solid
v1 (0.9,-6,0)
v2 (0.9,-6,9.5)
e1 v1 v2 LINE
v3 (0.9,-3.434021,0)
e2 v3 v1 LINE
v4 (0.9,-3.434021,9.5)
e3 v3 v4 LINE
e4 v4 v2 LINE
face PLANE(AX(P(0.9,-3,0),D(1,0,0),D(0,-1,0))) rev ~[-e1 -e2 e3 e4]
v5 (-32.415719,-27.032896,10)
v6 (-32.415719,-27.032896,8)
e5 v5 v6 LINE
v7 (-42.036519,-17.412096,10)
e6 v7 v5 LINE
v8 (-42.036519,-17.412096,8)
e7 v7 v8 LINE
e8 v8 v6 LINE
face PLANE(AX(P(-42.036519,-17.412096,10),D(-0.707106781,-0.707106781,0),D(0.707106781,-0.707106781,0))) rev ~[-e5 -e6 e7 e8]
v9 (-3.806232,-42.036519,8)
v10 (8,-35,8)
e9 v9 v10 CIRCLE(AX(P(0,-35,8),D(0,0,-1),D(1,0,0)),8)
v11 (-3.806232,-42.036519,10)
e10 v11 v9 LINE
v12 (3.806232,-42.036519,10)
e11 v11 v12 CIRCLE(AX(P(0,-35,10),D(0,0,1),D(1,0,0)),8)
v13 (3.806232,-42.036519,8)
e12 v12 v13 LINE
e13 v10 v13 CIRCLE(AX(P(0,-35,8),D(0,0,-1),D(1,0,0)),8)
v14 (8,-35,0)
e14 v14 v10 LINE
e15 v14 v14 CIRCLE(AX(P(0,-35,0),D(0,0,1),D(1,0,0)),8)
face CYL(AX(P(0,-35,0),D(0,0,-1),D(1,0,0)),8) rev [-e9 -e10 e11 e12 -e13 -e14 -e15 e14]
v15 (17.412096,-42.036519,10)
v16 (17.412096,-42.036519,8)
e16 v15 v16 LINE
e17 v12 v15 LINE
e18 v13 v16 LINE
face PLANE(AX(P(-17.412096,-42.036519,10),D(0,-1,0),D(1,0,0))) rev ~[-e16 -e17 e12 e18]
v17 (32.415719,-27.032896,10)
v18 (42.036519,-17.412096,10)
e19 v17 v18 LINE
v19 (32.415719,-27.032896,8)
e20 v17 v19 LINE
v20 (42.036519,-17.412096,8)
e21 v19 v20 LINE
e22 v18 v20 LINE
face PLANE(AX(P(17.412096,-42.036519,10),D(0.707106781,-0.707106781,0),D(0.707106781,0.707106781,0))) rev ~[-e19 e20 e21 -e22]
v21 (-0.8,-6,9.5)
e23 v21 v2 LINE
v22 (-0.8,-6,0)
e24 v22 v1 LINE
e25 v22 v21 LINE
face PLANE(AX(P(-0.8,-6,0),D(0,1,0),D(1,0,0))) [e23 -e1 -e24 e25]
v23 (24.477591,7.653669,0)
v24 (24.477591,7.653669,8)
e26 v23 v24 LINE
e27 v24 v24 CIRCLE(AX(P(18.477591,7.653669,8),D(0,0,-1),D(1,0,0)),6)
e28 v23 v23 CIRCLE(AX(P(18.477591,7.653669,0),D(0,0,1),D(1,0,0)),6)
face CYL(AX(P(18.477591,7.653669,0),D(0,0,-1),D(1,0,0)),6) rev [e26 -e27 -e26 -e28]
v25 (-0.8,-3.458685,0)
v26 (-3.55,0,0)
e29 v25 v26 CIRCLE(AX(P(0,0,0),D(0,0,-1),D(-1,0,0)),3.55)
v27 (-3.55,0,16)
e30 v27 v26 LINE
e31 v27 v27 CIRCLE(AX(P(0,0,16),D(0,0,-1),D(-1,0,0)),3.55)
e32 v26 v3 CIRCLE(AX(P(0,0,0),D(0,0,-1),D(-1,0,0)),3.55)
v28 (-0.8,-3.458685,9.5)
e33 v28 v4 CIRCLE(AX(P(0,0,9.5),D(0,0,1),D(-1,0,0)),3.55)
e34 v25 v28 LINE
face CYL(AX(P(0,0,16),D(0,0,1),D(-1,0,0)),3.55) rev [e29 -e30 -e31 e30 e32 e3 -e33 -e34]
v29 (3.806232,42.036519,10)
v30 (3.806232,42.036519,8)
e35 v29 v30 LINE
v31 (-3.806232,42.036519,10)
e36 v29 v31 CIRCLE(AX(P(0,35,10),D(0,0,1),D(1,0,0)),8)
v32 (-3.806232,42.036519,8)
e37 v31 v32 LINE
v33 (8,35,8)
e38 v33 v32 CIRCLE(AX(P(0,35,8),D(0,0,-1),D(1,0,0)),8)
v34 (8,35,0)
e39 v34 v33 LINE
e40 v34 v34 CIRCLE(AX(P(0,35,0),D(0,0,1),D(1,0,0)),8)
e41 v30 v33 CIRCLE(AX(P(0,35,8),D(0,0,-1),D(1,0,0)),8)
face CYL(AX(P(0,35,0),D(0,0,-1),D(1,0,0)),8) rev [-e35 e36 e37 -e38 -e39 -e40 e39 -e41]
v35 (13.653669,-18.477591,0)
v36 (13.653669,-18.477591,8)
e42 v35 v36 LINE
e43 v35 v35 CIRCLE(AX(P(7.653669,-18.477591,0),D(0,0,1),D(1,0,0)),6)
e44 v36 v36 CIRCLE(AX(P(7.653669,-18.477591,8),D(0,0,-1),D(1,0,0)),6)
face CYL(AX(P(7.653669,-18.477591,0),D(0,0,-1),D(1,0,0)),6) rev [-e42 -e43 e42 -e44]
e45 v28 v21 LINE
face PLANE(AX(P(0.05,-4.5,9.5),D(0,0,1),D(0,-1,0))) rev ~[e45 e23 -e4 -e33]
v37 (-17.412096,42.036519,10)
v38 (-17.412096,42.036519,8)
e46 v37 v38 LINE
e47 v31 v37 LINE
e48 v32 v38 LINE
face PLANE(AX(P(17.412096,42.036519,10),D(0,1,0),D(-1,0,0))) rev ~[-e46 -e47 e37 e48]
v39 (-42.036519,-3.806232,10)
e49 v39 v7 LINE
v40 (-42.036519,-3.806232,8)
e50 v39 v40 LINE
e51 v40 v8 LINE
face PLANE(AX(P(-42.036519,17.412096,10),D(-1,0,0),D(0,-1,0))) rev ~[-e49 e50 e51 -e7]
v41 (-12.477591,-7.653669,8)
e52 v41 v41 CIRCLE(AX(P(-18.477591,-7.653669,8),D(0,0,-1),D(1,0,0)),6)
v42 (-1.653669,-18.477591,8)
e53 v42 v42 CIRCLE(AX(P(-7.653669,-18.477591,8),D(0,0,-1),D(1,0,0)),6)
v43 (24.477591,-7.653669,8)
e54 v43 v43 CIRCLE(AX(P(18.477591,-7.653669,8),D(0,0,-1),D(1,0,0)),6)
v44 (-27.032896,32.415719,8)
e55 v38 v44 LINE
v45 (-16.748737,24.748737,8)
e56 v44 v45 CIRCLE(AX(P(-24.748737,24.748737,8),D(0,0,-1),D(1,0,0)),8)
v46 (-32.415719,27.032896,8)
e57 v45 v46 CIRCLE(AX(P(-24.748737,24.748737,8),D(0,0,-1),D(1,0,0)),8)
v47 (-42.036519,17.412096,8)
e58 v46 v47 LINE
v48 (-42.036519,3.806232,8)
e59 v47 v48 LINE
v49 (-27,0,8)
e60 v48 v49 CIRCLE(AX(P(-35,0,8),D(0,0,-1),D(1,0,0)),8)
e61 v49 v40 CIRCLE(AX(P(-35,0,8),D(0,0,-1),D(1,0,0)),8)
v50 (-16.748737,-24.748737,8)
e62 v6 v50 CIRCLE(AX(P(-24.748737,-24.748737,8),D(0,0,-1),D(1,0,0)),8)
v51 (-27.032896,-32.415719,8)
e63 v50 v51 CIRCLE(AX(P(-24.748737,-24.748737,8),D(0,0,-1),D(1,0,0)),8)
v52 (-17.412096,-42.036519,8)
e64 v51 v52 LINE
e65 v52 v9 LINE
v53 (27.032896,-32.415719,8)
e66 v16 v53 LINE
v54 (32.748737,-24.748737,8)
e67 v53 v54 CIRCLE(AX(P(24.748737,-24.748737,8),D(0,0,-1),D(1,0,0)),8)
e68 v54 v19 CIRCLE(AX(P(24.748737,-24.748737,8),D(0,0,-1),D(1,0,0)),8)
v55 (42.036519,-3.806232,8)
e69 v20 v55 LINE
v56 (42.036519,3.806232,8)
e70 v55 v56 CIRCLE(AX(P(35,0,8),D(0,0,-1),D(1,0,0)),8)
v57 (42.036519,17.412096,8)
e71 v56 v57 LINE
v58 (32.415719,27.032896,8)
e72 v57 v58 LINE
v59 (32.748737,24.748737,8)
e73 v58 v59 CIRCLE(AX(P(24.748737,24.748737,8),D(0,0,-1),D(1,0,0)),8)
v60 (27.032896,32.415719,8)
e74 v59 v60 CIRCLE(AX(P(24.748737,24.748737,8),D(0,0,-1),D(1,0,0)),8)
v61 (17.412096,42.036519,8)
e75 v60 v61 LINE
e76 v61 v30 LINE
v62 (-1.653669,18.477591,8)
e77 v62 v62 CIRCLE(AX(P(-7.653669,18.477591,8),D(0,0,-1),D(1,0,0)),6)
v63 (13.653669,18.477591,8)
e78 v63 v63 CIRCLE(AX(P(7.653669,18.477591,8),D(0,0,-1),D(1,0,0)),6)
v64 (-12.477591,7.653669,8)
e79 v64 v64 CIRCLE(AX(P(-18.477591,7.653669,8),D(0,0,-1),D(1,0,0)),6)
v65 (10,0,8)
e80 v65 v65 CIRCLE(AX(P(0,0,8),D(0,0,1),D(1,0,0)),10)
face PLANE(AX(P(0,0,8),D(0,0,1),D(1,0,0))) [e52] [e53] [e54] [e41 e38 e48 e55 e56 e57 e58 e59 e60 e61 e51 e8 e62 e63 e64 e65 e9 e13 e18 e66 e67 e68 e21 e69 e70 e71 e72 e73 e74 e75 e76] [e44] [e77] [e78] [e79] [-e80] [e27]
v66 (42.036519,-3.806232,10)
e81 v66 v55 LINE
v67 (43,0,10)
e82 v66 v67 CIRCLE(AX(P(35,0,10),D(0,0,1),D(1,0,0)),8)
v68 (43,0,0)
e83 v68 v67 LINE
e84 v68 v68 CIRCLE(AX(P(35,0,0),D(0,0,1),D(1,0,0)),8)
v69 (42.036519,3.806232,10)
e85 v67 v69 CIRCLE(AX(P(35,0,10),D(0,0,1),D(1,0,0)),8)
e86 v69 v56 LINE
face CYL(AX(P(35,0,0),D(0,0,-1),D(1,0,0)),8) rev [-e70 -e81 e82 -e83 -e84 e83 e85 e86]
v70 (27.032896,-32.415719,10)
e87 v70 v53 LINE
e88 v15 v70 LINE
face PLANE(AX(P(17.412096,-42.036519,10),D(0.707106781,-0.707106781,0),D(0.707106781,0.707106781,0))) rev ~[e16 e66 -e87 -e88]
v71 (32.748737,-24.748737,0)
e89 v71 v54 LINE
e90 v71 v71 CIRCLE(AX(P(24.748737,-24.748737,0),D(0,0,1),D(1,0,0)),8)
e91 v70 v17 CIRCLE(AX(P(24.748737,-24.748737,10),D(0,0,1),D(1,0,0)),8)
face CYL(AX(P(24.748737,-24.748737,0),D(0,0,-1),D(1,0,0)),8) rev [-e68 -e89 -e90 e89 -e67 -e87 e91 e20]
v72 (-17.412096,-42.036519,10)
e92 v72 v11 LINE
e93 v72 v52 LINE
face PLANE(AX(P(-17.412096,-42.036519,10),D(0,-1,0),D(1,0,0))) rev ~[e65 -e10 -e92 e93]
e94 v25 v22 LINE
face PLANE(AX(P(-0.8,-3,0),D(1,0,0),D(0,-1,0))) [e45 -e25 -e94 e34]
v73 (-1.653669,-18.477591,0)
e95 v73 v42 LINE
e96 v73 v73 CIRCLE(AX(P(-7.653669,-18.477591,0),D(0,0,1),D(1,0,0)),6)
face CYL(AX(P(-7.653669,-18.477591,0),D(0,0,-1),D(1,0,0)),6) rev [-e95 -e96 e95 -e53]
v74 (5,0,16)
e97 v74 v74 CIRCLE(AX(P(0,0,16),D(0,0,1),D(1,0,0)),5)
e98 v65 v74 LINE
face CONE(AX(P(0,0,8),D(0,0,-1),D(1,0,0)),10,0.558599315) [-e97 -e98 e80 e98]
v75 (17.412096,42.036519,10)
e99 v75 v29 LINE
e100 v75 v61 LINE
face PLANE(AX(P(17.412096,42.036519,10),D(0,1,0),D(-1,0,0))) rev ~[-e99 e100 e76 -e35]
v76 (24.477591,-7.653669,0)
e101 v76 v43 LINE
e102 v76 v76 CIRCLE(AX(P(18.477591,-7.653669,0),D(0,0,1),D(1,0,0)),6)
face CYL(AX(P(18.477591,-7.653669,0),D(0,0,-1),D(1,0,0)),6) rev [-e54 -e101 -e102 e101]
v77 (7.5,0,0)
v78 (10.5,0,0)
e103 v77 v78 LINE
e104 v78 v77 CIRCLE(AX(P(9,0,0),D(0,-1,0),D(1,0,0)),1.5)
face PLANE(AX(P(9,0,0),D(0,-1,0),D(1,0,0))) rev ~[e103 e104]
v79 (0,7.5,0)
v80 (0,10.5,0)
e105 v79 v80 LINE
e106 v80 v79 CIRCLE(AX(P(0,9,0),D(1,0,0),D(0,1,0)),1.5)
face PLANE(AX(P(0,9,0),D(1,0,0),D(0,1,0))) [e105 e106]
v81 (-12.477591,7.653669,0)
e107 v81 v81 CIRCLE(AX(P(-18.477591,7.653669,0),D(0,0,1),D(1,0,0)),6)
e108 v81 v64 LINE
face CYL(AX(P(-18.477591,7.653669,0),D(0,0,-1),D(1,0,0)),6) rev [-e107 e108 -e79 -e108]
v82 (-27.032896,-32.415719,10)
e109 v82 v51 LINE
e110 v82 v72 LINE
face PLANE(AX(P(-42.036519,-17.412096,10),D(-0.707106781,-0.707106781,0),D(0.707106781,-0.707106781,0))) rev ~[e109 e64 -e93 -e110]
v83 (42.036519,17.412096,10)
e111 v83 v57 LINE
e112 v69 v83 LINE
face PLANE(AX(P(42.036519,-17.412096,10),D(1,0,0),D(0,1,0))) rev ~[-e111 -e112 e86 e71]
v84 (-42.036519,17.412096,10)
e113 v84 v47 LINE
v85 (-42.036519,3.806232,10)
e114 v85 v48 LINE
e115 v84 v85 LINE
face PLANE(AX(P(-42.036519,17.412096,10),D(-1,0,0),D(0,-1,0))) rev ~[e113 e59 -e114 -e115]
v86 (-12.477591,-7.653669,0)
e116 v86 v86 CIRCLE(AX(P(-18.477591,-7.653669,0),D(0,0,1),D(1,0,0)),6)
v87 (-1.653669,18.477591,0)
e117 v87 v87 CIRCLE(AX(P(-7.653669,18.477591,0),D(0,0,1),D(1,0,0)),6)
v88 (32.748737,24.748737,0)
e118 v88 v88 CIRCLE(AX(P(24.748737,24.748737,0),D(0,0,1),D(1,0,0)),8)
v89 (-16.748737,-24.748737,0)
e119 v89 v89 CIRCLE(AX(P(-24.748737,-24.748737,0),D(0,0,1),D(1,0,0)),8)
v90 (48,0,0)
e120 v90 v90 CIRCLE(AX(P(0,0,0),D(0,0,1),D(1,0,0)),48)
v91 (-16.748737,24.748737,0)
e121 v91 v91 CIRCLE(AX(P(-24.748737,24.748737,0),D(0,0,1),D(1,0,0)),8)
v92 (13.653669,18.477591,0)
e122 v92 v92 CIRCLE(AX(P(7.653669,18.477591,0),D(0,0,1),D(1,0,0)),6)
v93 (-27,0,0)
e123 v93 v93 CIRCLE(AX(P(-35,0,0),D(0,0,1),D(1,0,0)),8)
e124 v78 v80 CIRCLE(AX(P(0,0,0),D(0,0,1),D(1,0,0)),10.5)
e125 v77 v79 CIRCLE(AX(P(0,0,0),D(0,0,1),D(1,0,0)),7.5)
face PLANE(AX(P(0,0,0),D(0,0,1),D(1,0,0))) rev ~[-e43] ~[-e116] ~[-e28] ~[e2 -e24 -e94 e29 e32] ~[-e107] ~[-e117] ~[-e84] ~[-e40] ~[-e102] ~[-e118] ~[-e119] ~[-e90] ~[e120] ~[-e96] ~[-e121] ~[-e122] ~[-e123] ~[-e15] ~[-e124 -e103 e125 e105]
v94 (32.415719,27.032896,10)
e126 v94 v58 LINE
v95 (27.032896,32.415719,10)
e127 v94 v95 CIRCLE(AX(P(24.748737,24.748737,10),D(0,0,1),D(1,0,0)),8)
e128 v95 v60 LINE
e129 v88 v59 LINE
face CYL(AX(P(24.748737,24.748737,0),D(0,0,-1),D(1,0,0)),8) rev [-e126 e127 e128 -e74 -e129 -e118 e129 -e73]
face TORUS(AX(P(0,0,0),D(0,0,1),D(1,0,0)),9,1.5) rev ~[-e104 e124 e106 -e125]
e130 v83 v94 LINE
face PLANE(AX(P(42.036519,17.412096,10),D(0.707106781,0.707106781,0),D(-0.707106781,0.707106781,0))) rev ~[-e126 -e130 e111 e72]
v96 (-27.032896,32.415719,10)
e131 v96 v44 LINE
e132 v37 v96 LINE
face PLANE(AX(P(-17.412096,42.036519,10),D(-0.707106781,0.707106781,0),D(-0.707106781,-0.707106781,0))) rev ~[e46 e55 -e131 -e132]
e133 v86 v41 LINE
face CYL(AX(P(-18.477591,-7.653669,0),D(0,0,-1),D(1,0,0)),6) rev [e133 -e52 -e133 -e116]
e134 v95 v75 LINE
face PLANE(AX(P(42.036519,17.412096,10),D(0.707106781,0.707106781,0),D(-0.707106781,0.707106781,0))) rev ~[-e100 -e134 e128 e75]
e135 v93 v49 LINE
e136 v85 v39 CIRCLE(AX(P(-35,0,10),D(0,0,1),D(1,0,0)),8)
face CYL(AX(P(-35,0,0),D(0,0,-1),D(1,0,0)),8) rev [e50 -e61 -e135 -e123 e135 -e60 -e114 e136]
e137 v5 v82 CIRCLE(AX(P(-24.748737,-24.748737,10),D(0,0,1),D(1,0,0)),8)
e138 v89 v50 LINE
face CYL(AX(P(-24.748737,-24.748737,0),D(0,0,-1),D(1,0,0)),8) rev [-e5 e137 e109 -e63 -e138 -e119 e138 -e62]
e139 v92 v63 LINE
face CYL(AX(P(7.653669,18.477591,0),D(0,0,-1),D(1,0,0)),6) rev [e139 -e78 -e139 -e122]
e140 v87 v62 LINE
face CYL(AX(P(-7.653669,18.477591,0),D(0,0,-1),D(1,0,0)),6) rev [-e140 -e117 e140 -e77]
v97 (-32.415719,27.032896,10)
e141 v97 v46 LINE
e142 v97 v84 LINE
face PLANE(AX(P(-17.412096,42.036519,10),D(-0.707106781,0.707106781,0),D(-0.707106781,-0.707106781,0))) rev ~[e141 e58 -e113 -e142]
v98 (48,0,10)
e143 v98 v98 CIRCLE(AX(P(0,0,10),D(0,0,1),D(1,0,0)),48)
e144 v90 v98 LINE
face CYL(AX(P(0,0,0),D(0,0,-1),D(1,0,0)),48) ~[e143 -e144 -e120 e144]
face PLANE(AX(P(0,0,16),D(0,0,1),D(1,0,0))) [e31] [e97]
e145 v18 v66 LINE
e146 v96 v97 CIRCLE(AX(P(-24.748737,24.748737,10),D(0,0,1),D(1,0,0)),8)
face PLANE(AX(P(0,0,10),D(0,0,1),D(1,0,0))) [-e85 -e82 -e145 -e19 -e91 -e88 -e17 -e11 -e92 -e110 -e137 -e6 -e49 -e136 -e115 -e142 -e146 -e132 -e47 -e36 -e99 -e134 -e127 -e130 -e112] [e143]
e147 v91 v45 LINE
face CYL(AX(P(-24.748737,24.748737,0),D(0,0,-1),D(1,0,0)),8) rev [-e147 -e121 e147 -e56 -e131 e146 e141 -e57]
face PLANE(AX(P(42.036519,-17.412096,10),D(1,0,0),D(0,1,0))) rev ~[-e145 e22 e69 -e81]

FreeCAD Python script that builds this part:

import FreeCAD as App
import Part
import Sketcher
from FreeCAD import Vector
Q = App.Units.Quantity


def add_polygon(sketch, points):
    """Adds a closed chain of lines whose ends are joined by coincident constraints."""
    first, n = sketch.GeometryCount, len(points)
    for a, b in zip(points, points[1:] + points[:1]):
        sketch.addGeometry(Part.LineSegment(App.Vector(*a, 0), App.Vector(*b, 0)), False)
    for i in range(n):
        sketch.addConstraint(Sketcher.Constraint("Coincident", first + i, 2, first + (i + 1) % n, 1))

doc = App.newDocument("Part")
body = doc.addObject("PartDesign::Body", "Body")

sketch1 = body.newObject("Sketcher::SketchObject", "Sketch")
sketch1.AttachmentSupport = (doc.getObject("XY_Plane"), [""])
sketch1.MapMode = "FlatFace"
sketch1.addGeometry([
    Part.Circle(Vector(0, 0, 0), Vector(0, 0, 1), 48),
    Part.Circle(Vector(-25, -25, 0), Vector(0, 0, 1), 8),
    Part.Circle(Vector(-8, -18, 0), Vector(0, 0, 1), 6),
    Part.Circle(Vector(-18, -8, 0), Vector(0, 0, 1), 6),
    Part.Circle(Vector(0, -35, 0), Vector(0, 0, 1), 8),
    Part.Circle(Vector(25, -25, 0), Vector(0, 0, 1), 8),
    Part.Circle(Vector(8, -18, 0), Vector(0, 0, 1), 6),
    Part.Circle(Vector(18, -8, 0), Vector(0, 0, 1), 6),
    Part.Circle(Vector(-35, 0, 0), Vector(0, 0, 1), 8),
    Part.Circle(Vector(-18, 8, 0), Vector(0, 0, 1), 6),
    Part.Circle(Vector(-8, 18, 0), Vector(0, 0, 1), 6),
    Part.Circle(Vector(-25, 25, 0), Vector(0, 0, 1), 8),
    Part.Circle(Vector(18, 8, 0), Vector(0, 0, 1), 6),
    Part.Circle(Vector(8, 18, 0), Vector(0, 0, 1), 6),
    Part.Circle(Vector(35, 0, 0), Vector(0, 0, 1), 8),
    Part.Circle(Vector(0, 35, 0), Vector(0, 0, 1), 8),
    Part.Circle(Vector(25, 25, 0), Vector(0, 0, 1), 8),
], False)
sketch1.addConstraint([
    Sketcher.Constraint("Coincident", 0, 3, -1, 1),
    Sketcher.Constraint("Equal", 2, 3),
    Sketcher.Constraint("Equal", 1, 4),
    Sketcher.Constraint("Equal", 4, 5),
    Sketcher.Constraint("Equal", 3, 6),
    Sketcher.Constraint("Equal", 6, 7),
    Sketcher.Constraint("Equal", 5, 8),
    Sketcher.Constraint("Equal", 7, 9),
    Sketcher.Constraint("Equal", 9, 10),
    Sketcher.Constraint("Equal", 8, 11),
    Sketcher.Constraint("Equal", 10, 12),
    Sketcher.Constraint("Equal", 12, 13),
    Sketcher.Constraint("Equal", 11, 14),
    Sketcher.Constraint("Equal", 14, 15),
    Sketcher.Constraint("Equal", 15, 16),
    Sketcher.Constraint("Symmetric", 7, 3, 9, 3, -1, 1),
    Sketcher.Constraint("Symmetric", 6, 3, 10, 3, -1, 1),
    Sketcher.Constraint("Symmetric", 5, 3, 11, 3, -1, 1),
    Sketcher.Constraint("Symmetric", 3, 3, 12, 3, -1, 1),
    Sketcher.Constraint("Symmetric", 2, 3, 13, 3, -1, 1),
    Sketcher.Constraint("Symmetric", 8, 3, 14, 3, -1, 1),
    Sketcher.Constraint("Symmetric", 4, 3, 15, 3, -1, 1),
    Sketcher.Constraint("Symmetric", 1, 3, 16, 3, -1, 1),
    Sketcher.Constraint("Symmetric", 1, 3, 5, 3, -2),
    Sketcher.Constraint("Symmetric", 2, 3, 6, 3, -2),
    Sketcher.Constraint("Symmetric", 3, 3, 7, 3, -2),
    Sketcher.Constraint("PointOnObject", 4, 3, -2),
    Sketcher.Constraint("PointOnObject", 8, 3, -1),
    Sketcher.Constraint("Diameter", 0, Q("96 mm")),
    Sketcher.Constraint("Diameter", 1, Q("16 mm")),
    Sketcher.Constraint("Diameter", 2, Q("12 mm")),
    Sketcher.Constraint("DistanceY", 4, 3, -1, 1, Q("35 mm")),
    Sketcher.Constraint("DistanceX", 8, 3, -1, 1, Q("35 mm")),
    Sketcher.Constraint("DistanceX", 2, 3, -1, 1, Q("7.653669 mm")),
    Sketcher.Constraint("DistanceY", 2, 3, -1, 1, Q("18.477591 mm")),
    Sketcher.Constraint("DistanceX", 3, 3, -1, 1, Q("18.477591 mm")),
    Sketcher.Constraint("DistanceY", 3, 3, -1, 1, Q("7.653669 mm")),
    Sketcher.Constraint("DistanceX", 1, 3, -1, 1, Q("24.748737 mm")),
    Sketcher.Constraint("DistanceY", 1, 3, -1, 1, Q("24.748737 mm")),
])
pad1 = body.newObject("PartDesign::Pad", "Pad")
pad1.Profile = sketch1
pad1.Length = 10

sketch2 = body.newObject("Sketcher::SketchObject", "Sketch001")
sketch2.AttachmentSupport = (doc.getObject("XY_Plane"), [""])
sketch2.MapMode = "FlatFace"
sketch2.AttachmentOffset = App.Placement(Vector(0, 0, 10), App.Rotation())
add_polygon(sketch2, [(42, 17), (17, 42), (-17, 42), (-42, 17), (-42, -17), (-17, -42), (17, -42), (42, -17)])
sketch2.addConstraint([
    Sketcher.Constraint("Horizontal", 1),
    Sketcher.Constraint("Vertical", 3),
    Sketcher.Constraint("Horizontal", 5),
    Sketcher.Constraint("Vertical", 7),
    Sketcher.Constraint("Symmetric", 0, 2, 4, 2, -1, 1),
    Sketcher.Constraint("Symmetric", 2, 2, 6, 2, -1, 1),
    Sketcher.Constraint("Perpendicular", 0, 2),
    Sketcher.Constraint("Perpendicular", 2, 4),
    Sketcher.Constraint("Perpendicular", 4, 6),
    Sketcher.Constraint("Horizontal", 3, 2, 6, 2),
    Sketcher.Constraint("Vertical", 1, 2, 4, 2),
    Sketcher.Constraint("Equal", 5, 3),
    Sketcher.Constraint("DistanceX", 1, 2, 1, 1, Q("34.824192 mm")),
    Sketcher.Constraint("DistanceY", -1, 1, 0, 2, Q("42.036519 mm")),
])
pocket1 = body.newObject("PartDesign::Pocket", "Pocket")
pocket1.Profile = sketch2
pocket1.Length = 2

sketch3 = body.newObject("Sketcher::SketchObject", "Sketch002")
sketch3.AttachmentSupport = (doc.getObject("XZ_Plane"), [""])
sketch3.MapMode = "FlatFace"
add_polygon(sketch3, [(0, 8), (10, 8), (5, 16), (0, 16)])
sketch3.addConstraint([
    Sketcher.Constraint("Horizontal", 0),
    Sketcher.Constraint("Horizontal", 2),
    Sketcher.Constraint("Vertical", 3),
    Sketcher.Constraint("PointOnObject", 2, 2, -2),
    Sketcher.Constraint("DistanceX", 0, 1, 0, 2, Q("10 mm")),
    Sketcher.Constraint("DistanceX", 2, 2, 2, 1, Q("5 mm")),
    Sketcher.Constraint("DistanceY", 3, 2, 3, 1, Q("8 mm")),
    Sketcher.Constraint("DistanceY", -1, 1, 0, 2, Q("8 mm")),
])
revolution = body.newObject("PartDesign::Revolution", "Revolution")
revolution.Profile = sketch3
revolution.ReferenceAxis = (sketch3, ["V_Axis"])
revolution.Angle = 360

sketch4 = body.newObject("Sketcher::SketchObject", "Sketch003")
sketch4.AttachmentSupport = (doc.getObject("XY_Plane"), [""])
sketch4.MapMode = "FlatFace"
sketch4.AttachmentOffset = App.Placement(Vector(0, 0, 16), App.Rotation())
sketch4.addGeometry(Part.Circle(Vector(0, 0, 0), Vector(0, 0, 1), 3.5), False)
sketch4.addConstraint([
    Sketcher.Constraint("Coincident", 0, 3, -1, 1),
    Sketcher.Constraint("Diameter", 0, Q("7.1 mm")),
])
pocket2 = body.newObject("PartDesign::Pocket", "Pocket001")
pocket2.Profile = sketch4
pocket2.Length = 16

sketch5 = body.newObject("Sketcher::SketchObject", "Sketch004")
sketch5.AttachmentSupport = (doc.getObject("XY_Plane"), [""])
sketch5.MapMode = "FlatFace"
add_polygon(sketch5, [(0.9, -3), (-0.8, -3), (-0.8, -6), (0.9, -6)])
sketch5.addConstraint([
    Sketcher.Constraint("Horizontal", 0),
    Sketcher.Constraint("Vertical", 1),
    Sketcher.Constraint("Horizontal", 2),
    Sketcher.Constraint("Vertical", 3),
    Sketcher.Constraint("DistanceY", 1, 2, 1, 1, Q("3 mm")),
    Sketcher.Constraint("DistanceX", 0, 2, 0, 1, Q("1.7 mm")),
    Sketcher.Constraint("DistanceY", 0, 2, -1, 1, Q("3 mm")),
    Sketcher.Constraint("DistanceX", 0, 2, -1, 1, Q("0.8 mm")),
])
pocket3 = body.newObject("PartDesign::Pocket", "Pocket002")
pocket3.Profile = sketch5
pocket3.Length = 9.5
pocket3.Reversed = True

sketch6 = body.newObject("Sketcher::SketchObject", "Sketch005")
sketch6.AttachmentSupport = (doc.getObject("XZ_Plane"), [""])
sketch6.MapMode = "FlatFace"
sketch6.addGeometry(Part.Circle(Vector(9, 0, 0), Vector(0, 0, 1), 1.5), False)
sketch6.addConstraint([
    Sketcher.Constraint("PointOnObject", 0, 3, -1),
    Sketcher.Constraint("Diameter", 0, Q("3 mm")),
    Sketcher.Constraint("DistanceX", -1, 1, 0, 3, Q("9 mm")),
])
groove = body.newObject("PartDesign::Groove", "Groove")
groove.Profile = sketch6
groove.ReferenceAxis = (sketch6, ["V_Axis"])
groove.Angle = 90

doc.recompute()
